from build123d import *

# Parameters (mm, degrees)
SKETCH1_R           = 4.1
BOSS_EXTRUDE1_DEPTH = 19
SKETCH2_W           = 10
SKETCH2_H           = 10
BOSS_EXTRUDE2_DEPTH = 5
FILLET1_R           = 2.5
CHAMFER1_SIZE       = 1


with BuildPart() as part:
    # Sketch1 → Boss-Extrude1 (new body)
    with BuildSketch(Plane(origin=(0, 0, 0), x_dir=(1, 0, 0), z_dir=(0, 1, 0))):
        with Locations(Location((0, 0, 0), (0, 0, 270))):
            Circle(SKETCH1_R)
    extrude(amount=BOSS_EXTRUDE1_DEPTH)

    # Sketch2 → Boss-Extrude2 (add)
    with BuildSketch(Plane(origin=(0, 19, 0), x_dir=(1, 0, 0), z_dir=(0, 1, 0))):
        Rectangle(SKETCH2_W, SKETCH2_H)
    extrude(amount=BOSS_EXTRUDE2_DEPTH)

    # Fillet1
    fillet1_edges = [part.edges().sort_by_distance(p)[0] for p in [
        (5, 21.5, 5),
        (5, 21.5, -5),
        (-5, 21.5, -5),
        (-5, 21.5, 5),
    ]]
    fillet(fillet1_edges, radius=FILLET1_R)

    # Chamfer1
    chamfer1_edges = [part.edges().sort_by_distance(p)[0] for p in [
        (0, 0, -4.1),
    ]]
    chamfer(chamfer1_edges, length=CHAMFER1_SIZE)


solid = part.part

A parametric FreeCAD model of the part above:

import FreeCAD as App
import Part
import Sketcher
from FreeCAD import Vector


def edges_at(feature, points):
    """Names of the edges that pass closest to the given points."""
    edges = feature.Shape.Edges
    near = lambda p: min(range(len(edges)), key=lambda i: edges[i].distToShape(Part.Vertex(*p))[0])
    return sorted({f"Edge{near(p) + 1}" for p in points})

doc = App.newDocument("Part")
body = doc.addObject("PartDesign::Body", "Body")

sketch1 = body.newObject("Sketcher::SketchObject", "Sketch")
sketch1.AttachmentSupport = (doc.getObject("XZ_Plane"), [""])
sketch1.MapMode = "FlatFace"
sketch1.addGeometry(Part.Circle(Vector(0, 0, 0), Vector(0, 0, 1), 4.1), False)
sketch1.addConstraint(Sketcher.Constraint("Coincident", 0, 3, -1, 1))
sketch1.addConstraint(Sketcher.Constraint("Diameter", 0, 8.2))
pad1 = body.newObject("PartDesign::Pad", "Pad")
pad1.Profile = sketch1
pad1.Length = 19
pad1.Reversed = True

sketch2 = body.newObject("Sketcher::SketchObject", "Sketch001")
sketch2.AttachmentSupport = (doc.getObject("XZ_Plane"), [""])
sketch2.MapMode = "FlatFace"
sketch2.AttachmentOffset = App.Placement(Vector(0, 0, -19), App.Rotation())
sketch2.addGeometry(Part.LineSegment(Vector(-5, -5, 0), Vector(-5, 5, 0)), False)
sketch2.addGeometry(Part.LineSegment(Vector(-5, 5, 0), Vector(5, 5, 0)), False)
sketch2.addGeometry(Part.LineSegment(Vector(5, 5, 0), Vector(5, -5, 0)), False)
sketch2.addGeometry(Part.LineSegment(Vector(5, -5, 0), Vector(-5, -5, 0)), False)
sketch2.addConstraint(Sketcher.Constraint("Coincident", 0, 2, 1, 1))
sketch2.addConstraint(Sketcher.Constraint("Coincident", 1, 2, 2, 1))
sketch2.addConstraint(Sketcher.Constraint("Coincident", 2, 2, 3, 1))
sketch2.addConstraint(Sketcher.Constraint("Coincident", 3, 2, 0, 1))
sketch2.addConstraint(Sketcher.Constraint("Vertical", 0))
sketch2.addConstraint(Sketcher.Constraint("Horizontal", 1))
sketch2.addConstraint(Sketcher.Constraint("Vertical", 2))
sketch2.addConstraint(Sketcher.Constraint("Horizontal", 3))
sketch2.addConstraint(Sketcher.Constraint("Symmetric", 0, 2, 2, 2, -1, 1))
sketch2.addConstraint(Sketcher.Constraint("Equal", 3, 0))
sketch2.addConstraint(Sketcher.Constraint("DistanceX", 1, 1, 1, 2, 10.0))
pad2 = body.newObject("PartDesign::Pad", "Pad001")
pad2.Profile = sketch2
pad2.Length = 5
pad2.Reversed = True
doc.recompute()

fillet = body.newObject("PartDesign::Fillet", "Fillet")
fillet.Base = (pad2, edges_at(pad2, [
    (5, 21.5, 5),
    (5, 21.5, -5),
    (-5, 21.5, -5),
    (-5, 21.5, 5),
]))
fillet.Radius = 2.5
doc.recompute()

chamfer = body.newObject("PartDesign::Chamfer", "Chamfer")
chamfer.Base = (fillet, edges_at(fillet, [(0, 0, -4.1)]))
chamfer.Size = 1

doc.recompute()
